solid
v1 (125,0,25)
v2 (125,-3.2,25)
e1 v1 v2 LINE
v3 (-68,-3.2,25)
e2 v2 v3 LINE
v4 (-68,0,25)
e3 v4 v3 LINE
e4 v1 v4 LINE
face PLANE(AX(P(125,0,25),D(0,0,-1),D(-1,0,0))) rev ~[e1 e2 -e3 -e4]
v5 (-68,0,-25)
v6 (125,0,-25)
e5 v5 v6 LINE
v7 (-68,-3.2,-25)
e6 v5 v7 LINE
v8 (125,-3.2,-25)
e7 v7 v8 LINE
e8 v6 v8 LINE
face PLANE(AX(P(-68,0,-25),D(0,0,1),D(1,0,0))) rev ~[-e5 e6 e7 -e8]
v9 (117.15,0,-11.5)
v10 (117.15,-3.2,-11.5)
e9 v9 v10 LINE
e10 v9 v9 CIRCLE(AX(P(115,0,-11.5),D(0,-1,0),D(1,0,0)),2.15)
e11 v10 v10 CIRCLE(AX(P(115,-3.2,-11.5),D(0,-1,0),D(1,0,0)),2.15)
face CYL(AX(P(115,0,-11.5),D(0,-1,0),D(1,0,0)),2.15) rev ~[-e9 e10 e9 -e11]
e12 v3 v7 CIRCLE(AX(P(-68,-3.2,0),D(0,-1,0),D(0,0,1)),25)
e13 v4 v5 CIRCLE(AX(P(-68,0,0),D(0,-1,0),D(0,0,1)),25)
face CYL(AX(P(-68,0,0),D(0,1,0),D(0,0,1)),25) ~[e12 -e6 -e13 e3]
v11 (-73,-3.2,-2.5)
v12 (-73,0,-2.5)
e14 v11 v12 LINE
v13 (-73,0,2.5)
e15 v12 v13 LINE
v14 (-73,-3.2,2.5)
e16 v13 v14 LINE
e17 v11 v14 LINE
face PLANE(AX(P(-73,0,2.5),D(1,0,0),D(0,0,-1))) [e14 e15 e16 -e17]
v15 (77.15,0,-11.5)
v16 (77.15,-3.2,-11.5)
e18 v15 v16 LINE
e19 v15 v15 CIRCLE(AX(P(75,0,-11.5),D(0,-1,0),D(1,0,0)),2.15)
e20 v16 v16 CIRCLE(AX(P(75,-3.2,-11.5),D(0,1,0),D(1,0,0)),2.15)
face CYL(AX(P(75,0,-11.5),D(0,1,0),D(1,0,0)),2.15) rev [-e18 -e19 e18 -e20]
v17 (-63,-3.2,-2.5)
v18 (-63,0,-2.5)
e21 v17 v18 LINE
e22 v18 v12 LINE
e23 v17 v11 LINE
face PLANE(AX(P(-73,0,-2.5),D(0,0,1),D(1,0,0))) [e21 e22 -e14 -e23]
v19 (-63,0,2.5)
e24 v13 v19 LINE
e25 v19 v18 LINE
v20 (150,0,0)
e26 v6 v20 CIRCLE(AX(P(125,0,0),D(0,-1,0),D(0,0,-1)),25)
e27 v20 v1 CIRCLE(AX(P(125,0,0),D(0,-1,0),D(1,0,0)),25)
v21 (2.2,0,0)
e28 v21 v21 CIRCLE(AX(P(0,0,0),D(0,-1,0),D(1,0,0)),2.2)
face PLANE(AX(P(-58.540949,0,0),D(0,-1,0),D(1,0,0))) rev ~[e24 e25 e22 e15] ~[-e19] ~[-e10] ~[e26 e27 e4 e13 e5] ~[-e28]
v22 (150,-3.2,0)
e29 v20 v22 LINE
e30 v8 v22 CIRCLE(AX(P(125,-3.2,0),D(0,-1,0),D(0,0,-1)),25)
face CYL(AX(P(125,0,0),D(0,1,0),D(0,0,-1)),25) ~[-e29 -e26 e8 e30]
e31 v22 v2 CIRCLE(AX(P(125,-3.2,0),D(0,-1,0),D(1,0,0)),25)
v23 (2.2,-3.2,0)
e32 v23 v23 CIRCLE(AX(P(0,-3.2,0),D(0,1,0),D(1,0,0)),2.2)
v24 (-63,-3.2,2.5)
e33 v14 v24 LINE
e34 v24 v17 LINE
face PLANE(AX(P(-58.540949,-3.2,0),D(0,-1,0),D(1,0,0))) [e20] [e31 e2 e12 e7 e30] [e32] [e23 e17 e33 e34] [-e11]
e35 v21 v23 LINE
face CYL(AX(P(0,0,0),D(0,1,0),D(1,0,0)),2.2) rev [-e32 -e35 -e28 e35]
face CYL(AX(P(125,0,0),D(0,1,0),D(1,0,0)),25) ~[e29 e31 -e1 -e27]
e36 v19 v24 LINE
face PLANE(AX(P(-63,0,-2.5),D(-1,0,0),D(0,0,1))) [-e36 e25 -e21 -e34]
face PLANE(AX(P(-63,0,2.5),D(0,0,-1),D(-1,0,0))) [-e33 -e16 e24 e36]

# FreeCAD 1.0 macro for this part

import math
import FreeCAD as App
import Part
import Sketcher
from FreeCAD import Vector
Q = App.Units.Quantity


def add_polygon(sketch, points):
    """Adds a closed chain of lines whose ends are joined by coincident constraints."""
    first, n = sketch.GeometryCount, len(points)
    for a, b in zip(points, points[1:] + points[:1]):
        sketch.addGeometry(Part.LineSegment(App.Vector(*a, 0), App.Vector(*b, 0)), False)
    for i in range(n):
        sketch.addConstraint(Sketcher.Constraint("Coincident", first + i, 2, first + (i + 1) % n, 1))

doc = App.newDocument("Part")
body = doc.addObject("PartDesign::Body", "Body")

sketch1 = doc.addObject("Sketcher::SketchObject", "Sketch")
body.addObject(sketch1)
sketch1.AttachmentSupport = (doc.XZ_Plane, [""])
sketch1.MapMode = "FlatFace"
sketch1.addGeometry([
    Part.LineSegment(Vector(-68, -25, 0), Vector(125, -25, 0)),
    Part.ArcOfCircle(Part.Circle(Vector(125, 0, 0), Vector(0, 0, 1), 25), math.radians(-90), math.radians(0)),
    Part.ArcOfCircle(Part.Circle(Vector(125, 0, 0), Vector(0, 0, 1), 25), math.radians(0), math.radians(90)),
    Part.LineSegment(Vector(125, 25, 0), Vector(-68, 25, 0)),
    Part.ArcOfCircle(Part.Circle(Vector(-68, 0, 0), Vector(0, 0, 1), 25), math.radians(90), math.radians(270)),
], False)
sketch1.addConstraint([
    Sketcher.Constraint("Tangent", 0, 2, 1, 1),
    Sketcher.Constraint("Tangent", 1, 2, 2, 1),
    Sketcher.Constraint("Tangent", 2, 2, 3, 1),
    Sketcher.Constraint("Tangent", 3, 2, 4, 1),
    Sketcher.Constraint("Tangent", 4, 2, 0, 1),
    Sketcher.Constraint("Horizontal", 0),
    Sketcher.Constraint("Horizontal", 3),
    Sketcher.Constraint("Equal", 1, 2),
    Sketcher.Constraint("PointOnObject", 1, 3, -1),
    Sketcher.Constraint("PointOnObject", 1, 2, -1),
    Sketcher.Constraint("Radius", 1, Q("25 mm")),
    Sketcher.Constraint("DistanceX", 0, 1, 0, 2, Q("193 mm")),
    Sketcher.Constraint("DistanceX", -1, 1, 1, 3, Q("125 mm")),
])
pad1 = doc.addObject("PartDesign::Pad", "Pad")
body.addObject(pad1)
pad1.Profile = sketch1
pad1.Length = 3.2

sketch2 = doc.addObject("Sketcher::SketchObject", "Sketch001")
body.addObject(sketch2)
sketch2.AttachmentSupport = (doc.XZ_Plane, [""])
sketch2.MapMode = "FlatFace"
sketch2.addGeometry(Part.Circle(Vector(0, 0, 0), Vector(0, 0, 1), 2.2), False)
add_polygon(sketch2, [(-63, -2.5), (-63, 2.5), (-73, 2.5), (-73, -2.5)])
sketch2.addGeometry(Part.Circle(Vector(75, -11.5, 0), Vector(0, 0, 1), 2.1), False)
sketch2.addGeometry(Part.Circle(Vector(115, -11.5, 0), Vector(0, 0, 1), 2.1), False)
sketch2.addConstraint([
    Sketcher.Constraint("Vertical", 1),
    Sketcher.Constraint("Horizontal", 2),
    Sketcher.Constraint("Vertical", 3),
    Sketcher.Constraint("Horizontal", 4),
    Sketcher.Constraint("Coincident", 0, 3, -1, 1),
    Sketcher.Constraint("Equal", 5, 6),
    Sketcher.Constraint("Horizontal", 5, 3, 6, 3),
    Sketcher.Constraint("Diameter", 0, Q("4.4 mm")),
    Sketcher.Constraint("Diameter", 5, Q("4.3 mm")),
    Sketcher.Constraint("DistanceX", 2, 2, 2, 1, Q("10 mm")),
    Sketcher.Constraint("DistanceY", 1, 1, 1, 2, Q("5 mm")),
    Sketcher.Constraint("DistanceX", -1, 1, 5, 3, Q("75 mm")),
    Sketcher.Constraint("DistanceX", -1, 1, 6, 3, Q("115 mm")),
    Sketcher.Constraint("DistanceX", 1, 2, -1, 1, Q("63 mm")),
    Sketcher.Constraint("DistanceY", 5, 3, 1, 2, Q("14 mm")),
    Sketcher.Constraint("DistanceY", 5, 3, -1, 1, Q("11.5 mm")),
])
pocket1 = doc.addObject("PartDesign::Pocket", "Pocket")
body.addObject(pocket1)
pocket1.Profile = sketch2
pocket1.Length = 25
pocket1.Midplane = True

doc.recompute()
